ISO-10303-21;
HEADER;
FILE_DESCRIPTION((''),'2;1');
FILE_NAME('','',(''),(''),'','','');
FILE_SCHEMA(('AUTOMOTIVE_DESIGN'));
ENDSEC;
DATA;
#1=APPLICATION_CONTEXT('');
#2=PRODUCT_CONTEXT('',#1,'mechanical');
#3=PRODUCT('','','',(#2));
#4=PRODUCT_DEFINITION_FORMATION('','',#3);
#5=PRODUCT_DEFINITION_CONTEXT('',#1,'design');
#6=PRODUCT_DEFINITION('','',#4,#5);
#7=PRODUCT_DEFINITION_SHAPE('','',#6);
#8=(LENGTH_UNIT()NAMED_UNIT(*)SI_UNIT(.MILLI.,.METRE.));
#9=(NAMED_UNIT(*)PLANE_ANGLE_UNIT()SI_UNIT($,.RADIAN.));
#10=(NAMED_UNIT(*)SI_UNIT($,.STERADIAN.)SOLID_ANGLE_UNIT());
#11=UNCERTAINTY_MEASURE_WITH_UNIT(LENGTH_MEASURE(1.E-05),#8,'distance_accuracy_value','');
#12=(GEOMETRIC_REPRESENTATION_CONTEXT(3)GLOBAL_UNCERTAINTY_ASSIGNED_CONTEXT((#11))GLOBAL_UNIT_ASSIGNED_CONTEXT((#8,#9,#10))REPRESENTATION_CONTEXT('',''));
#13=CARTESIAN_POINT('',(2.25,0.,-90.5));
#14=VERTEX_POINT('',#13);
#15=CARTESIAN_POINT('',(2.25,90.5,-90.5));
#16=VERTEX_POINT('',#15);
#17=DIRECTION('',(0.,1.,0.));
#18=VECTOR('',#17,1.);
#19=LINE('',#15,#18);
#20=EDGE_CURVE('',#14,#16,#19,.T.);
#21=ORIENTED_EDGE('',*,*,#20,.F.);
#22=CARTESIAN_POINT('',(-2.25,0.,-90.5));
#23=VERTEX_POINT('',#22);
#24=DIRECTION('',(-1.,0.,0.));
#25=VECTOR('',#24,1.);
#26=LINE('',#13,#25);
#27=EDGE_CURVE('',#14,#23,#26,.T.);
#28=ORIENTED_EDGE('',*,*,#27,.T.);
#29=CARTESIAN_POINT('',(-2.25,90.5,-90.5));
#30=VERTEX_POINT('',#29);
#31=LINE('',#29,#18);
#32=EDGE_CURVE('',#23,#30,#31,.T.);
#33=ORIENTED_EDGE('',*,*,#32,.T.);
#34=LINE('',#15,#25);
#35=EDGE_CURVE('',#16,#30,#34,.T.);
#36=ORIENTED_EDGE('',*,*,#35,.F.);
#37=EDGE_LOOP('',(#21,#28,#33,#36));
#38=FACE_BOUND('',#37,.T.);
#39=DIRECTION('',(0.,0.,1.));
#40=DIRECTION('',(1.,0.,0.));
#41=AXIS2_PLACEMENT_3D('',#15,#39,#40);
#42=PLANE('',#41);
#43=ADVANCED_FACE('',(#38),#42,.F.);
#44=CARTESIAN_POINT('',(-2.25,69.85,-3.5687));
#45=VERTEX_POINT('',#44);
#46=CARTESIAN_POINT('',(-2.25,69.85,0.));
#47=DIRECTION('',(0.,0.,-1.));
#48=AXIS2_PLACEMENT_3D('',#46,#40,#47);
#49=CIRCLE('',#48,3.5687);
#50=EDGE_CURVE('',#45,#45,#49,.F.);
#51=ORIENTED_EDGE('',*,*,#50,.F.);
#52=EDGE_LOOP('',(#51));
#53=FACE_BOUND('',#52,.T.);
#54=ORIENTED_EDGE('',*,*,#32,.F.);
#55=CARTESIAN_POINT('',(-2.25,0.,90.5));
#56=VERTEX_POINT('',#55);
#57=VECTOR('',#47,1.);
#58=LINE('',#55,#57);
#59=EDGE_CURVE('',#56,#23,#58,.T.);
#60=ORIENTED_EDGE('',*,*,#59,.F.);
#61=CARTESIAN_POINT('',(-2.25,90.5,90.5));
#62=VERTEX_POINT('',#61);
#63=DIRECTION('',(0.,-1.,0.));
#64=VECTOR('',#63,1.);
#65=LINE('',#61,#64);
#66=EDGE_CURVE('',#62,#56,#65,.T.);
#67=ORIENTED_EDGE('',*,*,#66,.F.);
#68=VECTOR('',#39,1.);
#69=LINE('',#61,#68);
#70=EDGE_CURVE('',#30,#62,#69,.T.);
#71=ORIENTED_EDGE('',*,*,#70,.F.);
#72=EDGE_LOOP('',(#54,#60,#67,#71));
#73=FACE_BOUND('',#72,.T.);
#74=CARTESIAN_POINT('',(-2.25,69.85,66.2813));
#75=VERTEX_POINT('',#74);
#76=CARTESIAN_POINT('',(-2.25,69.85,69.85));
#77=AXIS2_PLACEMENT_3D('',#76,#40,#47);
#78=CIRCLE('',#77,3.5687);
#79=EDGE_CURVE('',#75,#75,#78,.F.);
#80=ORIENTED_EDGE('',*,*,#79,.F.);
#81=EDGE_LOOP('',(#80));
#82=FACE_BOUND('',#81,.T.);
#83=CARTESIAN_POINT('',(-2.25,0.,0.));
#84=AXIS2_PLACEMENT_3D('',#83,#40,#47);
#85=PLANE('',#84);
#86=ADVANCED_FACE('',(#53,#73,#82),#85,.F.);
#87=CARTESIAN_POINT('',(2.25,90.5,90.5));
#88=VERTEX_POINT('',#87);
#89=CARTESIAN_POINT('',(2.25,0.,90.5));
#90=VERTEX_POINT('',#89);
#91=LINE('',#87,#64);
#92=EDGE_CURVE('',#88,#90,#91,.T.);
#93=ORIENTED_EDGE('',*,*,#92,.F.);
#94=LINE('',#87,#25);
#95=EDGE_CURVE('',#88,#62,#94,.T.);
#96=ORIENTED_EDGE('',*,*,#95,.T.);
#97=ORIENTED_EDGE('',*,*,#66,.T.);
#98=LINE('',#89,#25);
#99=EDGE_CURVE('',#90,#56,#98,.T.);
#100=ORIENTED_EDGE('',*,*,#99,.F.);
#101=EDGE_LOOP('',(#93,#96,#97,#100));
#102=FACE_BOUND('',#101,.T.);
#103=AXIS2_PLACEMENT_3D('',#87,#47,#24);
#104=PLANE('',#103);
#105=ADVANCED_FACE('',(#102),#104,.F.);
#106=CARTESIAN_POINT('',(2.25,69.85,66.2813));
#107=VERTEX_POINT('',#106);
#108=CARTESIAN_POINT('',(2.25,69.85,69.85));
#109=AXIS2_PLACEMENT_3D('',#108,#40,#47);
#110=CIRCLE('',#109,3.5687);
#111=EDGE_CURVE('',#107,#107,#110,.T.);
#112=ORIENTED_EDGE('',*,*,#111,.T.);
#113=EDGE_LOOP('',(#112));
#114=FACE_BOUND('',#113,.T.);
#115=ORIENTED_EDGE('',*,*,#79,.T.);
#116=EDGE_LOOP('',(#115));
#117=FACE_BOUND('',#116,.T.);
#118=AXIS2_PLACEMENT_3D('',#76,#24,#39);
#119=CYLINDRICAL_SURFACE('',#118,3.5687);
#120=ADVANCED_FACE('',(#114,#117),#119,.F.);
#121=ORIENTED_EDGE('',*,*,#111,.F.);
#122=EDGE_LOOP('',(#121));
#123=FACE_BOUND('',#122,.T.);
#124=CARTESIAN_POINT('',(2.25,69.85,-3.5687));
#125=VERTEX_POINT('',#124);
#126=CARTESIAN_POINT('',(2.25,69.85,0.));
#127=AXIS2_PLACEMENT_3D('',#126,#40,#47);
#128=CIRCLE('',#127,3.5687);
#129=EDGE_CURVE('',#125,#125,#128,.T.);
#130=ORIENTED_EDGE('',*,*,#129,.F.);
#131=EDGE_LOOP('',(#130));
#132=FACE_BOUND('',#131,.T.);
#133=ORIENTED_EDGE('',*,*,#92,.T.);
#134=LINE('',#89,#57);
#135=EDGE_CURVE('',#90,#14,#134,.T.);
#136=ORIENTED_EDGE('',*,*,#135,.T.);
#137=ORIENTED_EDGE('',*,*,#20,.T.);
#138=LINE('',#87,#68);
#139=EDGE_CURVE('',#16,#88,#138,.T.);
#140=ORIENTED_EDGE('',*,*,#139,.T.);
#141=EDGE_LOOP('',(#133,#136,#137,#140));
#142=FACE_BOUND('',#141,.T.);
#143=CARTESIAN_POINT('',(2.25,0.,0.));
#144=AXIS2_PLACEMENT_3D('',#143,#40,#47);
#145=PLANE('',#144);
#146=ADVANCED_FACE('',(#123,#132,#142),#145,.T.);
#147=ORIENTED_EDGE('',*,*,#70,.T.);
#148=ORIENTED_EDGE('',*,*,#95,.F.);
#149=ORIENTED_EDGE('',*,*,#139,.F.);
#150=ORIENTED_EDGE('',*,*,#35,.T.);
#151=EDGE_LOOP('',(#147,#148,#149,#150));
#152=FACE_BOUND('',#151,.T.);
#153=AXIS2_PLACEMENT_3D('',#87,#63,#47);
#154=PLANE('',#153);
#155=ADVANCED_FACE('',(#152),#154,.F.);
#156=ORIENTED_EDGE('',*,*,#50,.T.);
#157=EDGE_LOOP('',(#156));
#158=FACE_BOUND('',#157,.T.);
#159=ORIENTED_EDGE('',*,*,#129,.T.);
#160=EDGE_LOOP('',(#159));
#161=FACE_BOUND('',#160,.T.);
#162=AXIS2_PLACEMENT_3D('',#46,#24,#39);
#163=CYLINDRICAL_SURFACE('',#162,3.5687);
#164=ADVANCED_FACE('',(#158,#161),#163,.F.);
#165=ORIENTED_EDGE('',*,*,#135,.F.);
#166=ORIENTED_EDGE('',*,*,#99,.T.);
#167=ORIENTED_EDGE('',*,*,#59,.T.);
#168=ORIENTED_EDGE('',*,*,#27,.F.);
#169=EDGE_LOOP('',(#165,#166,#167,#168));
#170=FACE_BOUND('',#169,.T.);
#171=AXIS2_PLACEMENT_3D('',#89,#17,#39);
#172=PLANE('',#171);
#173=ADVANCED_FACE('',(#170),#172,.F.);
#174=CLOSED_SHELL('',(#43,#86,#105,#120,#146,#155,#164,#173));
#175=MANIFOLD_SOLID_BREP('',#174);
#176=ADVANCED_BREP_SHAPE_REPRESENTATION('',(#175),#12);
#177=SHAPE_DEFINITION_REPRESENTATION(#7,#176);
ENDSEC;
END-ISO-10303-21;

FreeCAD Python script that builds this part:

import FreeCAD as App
import Part
import Sketcher

V = App.Vector


def add_polygon(sketch, points):
    """Adds a closed chain of lines whose ends are joined by coincident constraints."""
    first, n = sketch.GeometryCount, len(points)
    for a, b in zip(points, points[1:] + points[:1]):
        sketch.addGeometry(Part.LineSegment(App.Vector(*a, 0), App.Vector(*b, 0)), False)
    for i in range(n):
        sketch.addConstraint(Sketcher.Constraint("Coincident", first + i, 2, first + (i + 1) % n, 1))

doc = App.newDocument("Part")
body = doc.addObject("PartDesign::Body", "Body")

# Sketch on YZ plane
sketch1 = body.newObject("Sketcher::SketchObject", "Sketch")
sketch1.AttachmentSupport = (doc.getObject("YZ_Plane"), [""])
sketch1.MapMode = "FlatFace"
add_polygon(sketch1, [(90.5, 90.5), (0, 90.5), (0, -90.5), (90.5, -90.5)])  # lines 0-3
sketch1.addConstraint(Sketcher.Constraint("Horizontal", 0))
sketch1.addConstraint(Sketcher.Constraint("Vertical", 1))
sketch1.addConstraint(Sketcher.Constraint("Horizontal", 2))
sketch1.addConstraint(Sketcher.Constraint("Vertical", 3))
sketch1.addConstraint(Sketcher.Constraint("Symmetric", 0, 2, 1, 2, -1, 1))
sketch1.addConstraint(Sketcher.Constraint("DistanceY", 1, 2, 1, 1, 181.0))
sketch1.addConstraint(Sketcher.Constraint("DistanceX", 0, 2, 0, 1, 90.5))
pad1 = body.newObject("PartDesign::Pad", "Pad")
pad1.Profile = sketch1
pad1.Length = 4.5
pad1.Midplane = True

# Sketch on YZ plane
sketch2 = body.newObject("Sketcher::SketchObject", "Sketch001")
sketch2.AttachmentSupport = (doc.getObject("YZ_Plane"), [""])
sketch2.MapMode = "FlatFace"
sketch2.AttachmentOffset = App.Placement(V(0, 0, -88.25), App.Rotation())
sketch2.addGeometry(Part.Circle(V(69.85, 69.85, 0), V(0, 0, 1), 3.5687), False)
sketch2.addGeometry(Part.Circle(V(69.85, 0, 0), V(0, 0, 1), 3.5687), False)
sketch2.addConstraint(Sketcher.Constraint("Equal", 0, 1))
sketch2.addConstraint(Sketcher.Constraint("PointOnObject", 1, 3, -1))
sketch2.addConstraint(Sketcher.Constraint("Vertical", 0, 3, 1, 3))
sketch2.addConstraint(Sketcher.Constraint("Diameter", 0, 7.1374))
sketch2.addConstraint(Sketcher.Constraint("DistanceX", -1, 1, 0, 3, 69.85))
sketch2.addConstraint(Sketcher.Constraint("DistanceY", -1, 1, 0, 3, 69.85))
pocket1 = body.newObject("PartDesign::Pocket", "Pocket")
pocket1.Profile = sketch2
pocket1.Type = "ThroughAll"
pocket1.Midplane = True

doc.recompute()
